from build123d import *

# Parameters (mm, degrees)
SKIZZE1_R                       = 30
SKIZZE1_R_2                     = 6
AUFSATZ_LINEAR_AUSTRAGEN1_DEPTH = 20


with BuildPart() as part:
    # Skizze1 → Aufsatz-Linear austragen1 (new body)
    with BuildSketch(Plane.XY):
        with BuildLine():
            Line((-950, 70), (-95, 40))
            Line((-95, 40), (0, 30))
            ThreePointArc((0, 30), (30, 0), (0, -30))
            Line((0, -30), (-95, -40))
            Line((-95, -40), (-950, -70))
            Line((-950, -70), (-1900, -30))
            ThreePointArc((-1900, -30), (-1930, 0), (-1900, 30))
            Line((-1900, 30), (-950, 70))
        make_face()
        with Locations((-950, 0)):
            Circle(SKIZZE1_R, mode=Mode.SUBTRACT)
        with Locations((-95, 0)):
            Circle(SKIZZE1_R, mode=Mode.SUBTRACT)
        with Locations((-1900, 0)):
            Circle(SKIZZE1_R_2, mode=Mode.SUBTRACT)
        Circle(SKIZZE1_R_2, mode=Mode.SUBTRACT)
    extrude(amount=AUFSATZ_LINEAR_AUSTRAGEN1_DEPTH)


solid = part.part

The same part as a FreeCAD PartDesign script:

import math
import FreeCAD as App
import Part
import Sketcher
Q = App.Units.Quantity

doc = App.newDocument("Part")
body = doc.addObject("PartDesign::Body", "Body")

# Sketch on XY plane
sketch1 = body.newObject("Sketcher::SketchObject", "Sketch")
sketch1.AttachmentSupport = (doc.getObject("XY_Plane"), [""])
sketch1.MapMode = "FlatFace"
sketch1.addGeometry([
    Part.LineSegment(App.Vector(-95, 40, 0), App.Vector(-950, 70, 0)),  # 0
    Part.LineSegment(App.Vector(-950, 70, 0), App.Vector(-1900, 30, 0)),  # 1
    Part.ArcOfCircle(Part.Circle(App.Vector(-1900, 0, 0), App.Vector(0, 0, 1), 30), math.radians(90), math.radians(270)),  # 2
    Part.LineSegment(App.Vector(-1900, -30, 0), App.Vector(-950, -70, 0)),  # 3
    Part.LineSegment(App.Vector(-950, -70, 0), App.Vector(-95, -40, 0)),  # 4
    Part.LineSegment(App.Vector(-95, -40, 0), App.Vector(0, -30, 0)),  # 5
    Part.ArcOfCircle(Part.Circle(App.Vector(0, 0, 0), App.Vector(0, 0, 1), 30), math.radians(-90), math.radians(90)),  # 6
    Part.LineSegment(App.Vector(0, 30, 0), App.Vector(-95, 40, 0)),  # 7
    Part.Circle(App.Vector(0, 0, 0), App.Vector(0, 0, 1), 6),  # 8
    Part.Circle(App.Vector(-95, 0, 0), App.Vector(0, 0, 1), 30),  # 9
    Part.Circle(App.Vector(-950, 0, 0), App.Vector(0, 0, 1), 30),  # 10
    Part.Circle(App.Vector(-1900, 0, 0), App.Vector(0, 0, 1), 6),  # 11
], False)
sketch1.addConstraint([
    Sketcher.Constraint("Coincident", 0, 2, 1, 1),
    Sketcher.Constraint("Coincident", 1, 2, 2, 1),
    Sketcher.Constraint("Coincident", 2, 2, 3, 1),
    Sketcher.Constraint("Coincident", 3, 2, 4, 1),
    Sketcher.Constraint("Coincident", 4, 2, 5, 1),
    Sketcher.Constraint("Coincident", 5, 2, 6, 1),
    Sketcher.Constraint("Coincident", 6, 2, 7, 1),
    Sketcher.Constraint("Coincident", 7, 2, 0, 1),
    Sketcher.Constraint("Coincident", 6, 3, -1, 1),
    Sketcher.Constraint("Coincident", 8, 3, -1, 1),
    Sketcher.Constraint("Coincident", 11, 3, 2, 3),
    Sketcher.Constraint("Equal", 2, 6),
    Sketcher.Constraint("Equal", 6, 9),
    Sketcher.Constraint("Equal", 9, 10),
    Sketcher.Constraint("Equal", 8, 11),
    Sketcher.Constraint("Symmetric", 1, 2, 2, 2, -1),
    Sketcher.Constraint("Symmetric", 0, 2, 3, 2, -1),
    Sketcher.Constraint("Symmetric", 4, 2, 7, 2, -1),
    Sketcher.Constraint("PointOnObject", 9, 3, -1),
    Sketcher.Constraint("PointOnObject", 10, 3, -1),
    Sketcher.Constraint("PointOnObject", 5, 2, -2),
    Sketcher.Constraint("PointOnObject", 6, 2, -2),
    Sketcher.Constraint("Vertical", 10, 3, 0, 2),
    Sketcher.Constraint("Vertical", 11, 3, 1, 2),
    Sketcher.Constraint("Vertical", 9, 3, 4, 2),
    Sketcher.Constraint("Diameter", 8, Q("12 mm")),
    Sketcher.Constraint("Diameter", 9, Q("60 mm")),
    Sketcher.Constraint("DistanceX", 2, 3, -1, 1, Q("1900 mm")),
    Sketcher.Constraint("DistanceX", 9, 3, -1, 1, Q("95 mm")),
    Sketcher.Constraint("DistanceX", 10, 3, -1, 1, Q("950 mm")),
    Sketcher.Constraint("DistanceY", -1, 1, 0, 2, Q("70 mm")),
    Sketcher.Constraint("DistanceY", 4, 2, -1, 1, Q("40 mm")),
])
pad1 = body.newObject("PartDesign::Pad", "Pad")
pad1.Profile = sketch1
pad1.Length = 20

doc.recompute()
